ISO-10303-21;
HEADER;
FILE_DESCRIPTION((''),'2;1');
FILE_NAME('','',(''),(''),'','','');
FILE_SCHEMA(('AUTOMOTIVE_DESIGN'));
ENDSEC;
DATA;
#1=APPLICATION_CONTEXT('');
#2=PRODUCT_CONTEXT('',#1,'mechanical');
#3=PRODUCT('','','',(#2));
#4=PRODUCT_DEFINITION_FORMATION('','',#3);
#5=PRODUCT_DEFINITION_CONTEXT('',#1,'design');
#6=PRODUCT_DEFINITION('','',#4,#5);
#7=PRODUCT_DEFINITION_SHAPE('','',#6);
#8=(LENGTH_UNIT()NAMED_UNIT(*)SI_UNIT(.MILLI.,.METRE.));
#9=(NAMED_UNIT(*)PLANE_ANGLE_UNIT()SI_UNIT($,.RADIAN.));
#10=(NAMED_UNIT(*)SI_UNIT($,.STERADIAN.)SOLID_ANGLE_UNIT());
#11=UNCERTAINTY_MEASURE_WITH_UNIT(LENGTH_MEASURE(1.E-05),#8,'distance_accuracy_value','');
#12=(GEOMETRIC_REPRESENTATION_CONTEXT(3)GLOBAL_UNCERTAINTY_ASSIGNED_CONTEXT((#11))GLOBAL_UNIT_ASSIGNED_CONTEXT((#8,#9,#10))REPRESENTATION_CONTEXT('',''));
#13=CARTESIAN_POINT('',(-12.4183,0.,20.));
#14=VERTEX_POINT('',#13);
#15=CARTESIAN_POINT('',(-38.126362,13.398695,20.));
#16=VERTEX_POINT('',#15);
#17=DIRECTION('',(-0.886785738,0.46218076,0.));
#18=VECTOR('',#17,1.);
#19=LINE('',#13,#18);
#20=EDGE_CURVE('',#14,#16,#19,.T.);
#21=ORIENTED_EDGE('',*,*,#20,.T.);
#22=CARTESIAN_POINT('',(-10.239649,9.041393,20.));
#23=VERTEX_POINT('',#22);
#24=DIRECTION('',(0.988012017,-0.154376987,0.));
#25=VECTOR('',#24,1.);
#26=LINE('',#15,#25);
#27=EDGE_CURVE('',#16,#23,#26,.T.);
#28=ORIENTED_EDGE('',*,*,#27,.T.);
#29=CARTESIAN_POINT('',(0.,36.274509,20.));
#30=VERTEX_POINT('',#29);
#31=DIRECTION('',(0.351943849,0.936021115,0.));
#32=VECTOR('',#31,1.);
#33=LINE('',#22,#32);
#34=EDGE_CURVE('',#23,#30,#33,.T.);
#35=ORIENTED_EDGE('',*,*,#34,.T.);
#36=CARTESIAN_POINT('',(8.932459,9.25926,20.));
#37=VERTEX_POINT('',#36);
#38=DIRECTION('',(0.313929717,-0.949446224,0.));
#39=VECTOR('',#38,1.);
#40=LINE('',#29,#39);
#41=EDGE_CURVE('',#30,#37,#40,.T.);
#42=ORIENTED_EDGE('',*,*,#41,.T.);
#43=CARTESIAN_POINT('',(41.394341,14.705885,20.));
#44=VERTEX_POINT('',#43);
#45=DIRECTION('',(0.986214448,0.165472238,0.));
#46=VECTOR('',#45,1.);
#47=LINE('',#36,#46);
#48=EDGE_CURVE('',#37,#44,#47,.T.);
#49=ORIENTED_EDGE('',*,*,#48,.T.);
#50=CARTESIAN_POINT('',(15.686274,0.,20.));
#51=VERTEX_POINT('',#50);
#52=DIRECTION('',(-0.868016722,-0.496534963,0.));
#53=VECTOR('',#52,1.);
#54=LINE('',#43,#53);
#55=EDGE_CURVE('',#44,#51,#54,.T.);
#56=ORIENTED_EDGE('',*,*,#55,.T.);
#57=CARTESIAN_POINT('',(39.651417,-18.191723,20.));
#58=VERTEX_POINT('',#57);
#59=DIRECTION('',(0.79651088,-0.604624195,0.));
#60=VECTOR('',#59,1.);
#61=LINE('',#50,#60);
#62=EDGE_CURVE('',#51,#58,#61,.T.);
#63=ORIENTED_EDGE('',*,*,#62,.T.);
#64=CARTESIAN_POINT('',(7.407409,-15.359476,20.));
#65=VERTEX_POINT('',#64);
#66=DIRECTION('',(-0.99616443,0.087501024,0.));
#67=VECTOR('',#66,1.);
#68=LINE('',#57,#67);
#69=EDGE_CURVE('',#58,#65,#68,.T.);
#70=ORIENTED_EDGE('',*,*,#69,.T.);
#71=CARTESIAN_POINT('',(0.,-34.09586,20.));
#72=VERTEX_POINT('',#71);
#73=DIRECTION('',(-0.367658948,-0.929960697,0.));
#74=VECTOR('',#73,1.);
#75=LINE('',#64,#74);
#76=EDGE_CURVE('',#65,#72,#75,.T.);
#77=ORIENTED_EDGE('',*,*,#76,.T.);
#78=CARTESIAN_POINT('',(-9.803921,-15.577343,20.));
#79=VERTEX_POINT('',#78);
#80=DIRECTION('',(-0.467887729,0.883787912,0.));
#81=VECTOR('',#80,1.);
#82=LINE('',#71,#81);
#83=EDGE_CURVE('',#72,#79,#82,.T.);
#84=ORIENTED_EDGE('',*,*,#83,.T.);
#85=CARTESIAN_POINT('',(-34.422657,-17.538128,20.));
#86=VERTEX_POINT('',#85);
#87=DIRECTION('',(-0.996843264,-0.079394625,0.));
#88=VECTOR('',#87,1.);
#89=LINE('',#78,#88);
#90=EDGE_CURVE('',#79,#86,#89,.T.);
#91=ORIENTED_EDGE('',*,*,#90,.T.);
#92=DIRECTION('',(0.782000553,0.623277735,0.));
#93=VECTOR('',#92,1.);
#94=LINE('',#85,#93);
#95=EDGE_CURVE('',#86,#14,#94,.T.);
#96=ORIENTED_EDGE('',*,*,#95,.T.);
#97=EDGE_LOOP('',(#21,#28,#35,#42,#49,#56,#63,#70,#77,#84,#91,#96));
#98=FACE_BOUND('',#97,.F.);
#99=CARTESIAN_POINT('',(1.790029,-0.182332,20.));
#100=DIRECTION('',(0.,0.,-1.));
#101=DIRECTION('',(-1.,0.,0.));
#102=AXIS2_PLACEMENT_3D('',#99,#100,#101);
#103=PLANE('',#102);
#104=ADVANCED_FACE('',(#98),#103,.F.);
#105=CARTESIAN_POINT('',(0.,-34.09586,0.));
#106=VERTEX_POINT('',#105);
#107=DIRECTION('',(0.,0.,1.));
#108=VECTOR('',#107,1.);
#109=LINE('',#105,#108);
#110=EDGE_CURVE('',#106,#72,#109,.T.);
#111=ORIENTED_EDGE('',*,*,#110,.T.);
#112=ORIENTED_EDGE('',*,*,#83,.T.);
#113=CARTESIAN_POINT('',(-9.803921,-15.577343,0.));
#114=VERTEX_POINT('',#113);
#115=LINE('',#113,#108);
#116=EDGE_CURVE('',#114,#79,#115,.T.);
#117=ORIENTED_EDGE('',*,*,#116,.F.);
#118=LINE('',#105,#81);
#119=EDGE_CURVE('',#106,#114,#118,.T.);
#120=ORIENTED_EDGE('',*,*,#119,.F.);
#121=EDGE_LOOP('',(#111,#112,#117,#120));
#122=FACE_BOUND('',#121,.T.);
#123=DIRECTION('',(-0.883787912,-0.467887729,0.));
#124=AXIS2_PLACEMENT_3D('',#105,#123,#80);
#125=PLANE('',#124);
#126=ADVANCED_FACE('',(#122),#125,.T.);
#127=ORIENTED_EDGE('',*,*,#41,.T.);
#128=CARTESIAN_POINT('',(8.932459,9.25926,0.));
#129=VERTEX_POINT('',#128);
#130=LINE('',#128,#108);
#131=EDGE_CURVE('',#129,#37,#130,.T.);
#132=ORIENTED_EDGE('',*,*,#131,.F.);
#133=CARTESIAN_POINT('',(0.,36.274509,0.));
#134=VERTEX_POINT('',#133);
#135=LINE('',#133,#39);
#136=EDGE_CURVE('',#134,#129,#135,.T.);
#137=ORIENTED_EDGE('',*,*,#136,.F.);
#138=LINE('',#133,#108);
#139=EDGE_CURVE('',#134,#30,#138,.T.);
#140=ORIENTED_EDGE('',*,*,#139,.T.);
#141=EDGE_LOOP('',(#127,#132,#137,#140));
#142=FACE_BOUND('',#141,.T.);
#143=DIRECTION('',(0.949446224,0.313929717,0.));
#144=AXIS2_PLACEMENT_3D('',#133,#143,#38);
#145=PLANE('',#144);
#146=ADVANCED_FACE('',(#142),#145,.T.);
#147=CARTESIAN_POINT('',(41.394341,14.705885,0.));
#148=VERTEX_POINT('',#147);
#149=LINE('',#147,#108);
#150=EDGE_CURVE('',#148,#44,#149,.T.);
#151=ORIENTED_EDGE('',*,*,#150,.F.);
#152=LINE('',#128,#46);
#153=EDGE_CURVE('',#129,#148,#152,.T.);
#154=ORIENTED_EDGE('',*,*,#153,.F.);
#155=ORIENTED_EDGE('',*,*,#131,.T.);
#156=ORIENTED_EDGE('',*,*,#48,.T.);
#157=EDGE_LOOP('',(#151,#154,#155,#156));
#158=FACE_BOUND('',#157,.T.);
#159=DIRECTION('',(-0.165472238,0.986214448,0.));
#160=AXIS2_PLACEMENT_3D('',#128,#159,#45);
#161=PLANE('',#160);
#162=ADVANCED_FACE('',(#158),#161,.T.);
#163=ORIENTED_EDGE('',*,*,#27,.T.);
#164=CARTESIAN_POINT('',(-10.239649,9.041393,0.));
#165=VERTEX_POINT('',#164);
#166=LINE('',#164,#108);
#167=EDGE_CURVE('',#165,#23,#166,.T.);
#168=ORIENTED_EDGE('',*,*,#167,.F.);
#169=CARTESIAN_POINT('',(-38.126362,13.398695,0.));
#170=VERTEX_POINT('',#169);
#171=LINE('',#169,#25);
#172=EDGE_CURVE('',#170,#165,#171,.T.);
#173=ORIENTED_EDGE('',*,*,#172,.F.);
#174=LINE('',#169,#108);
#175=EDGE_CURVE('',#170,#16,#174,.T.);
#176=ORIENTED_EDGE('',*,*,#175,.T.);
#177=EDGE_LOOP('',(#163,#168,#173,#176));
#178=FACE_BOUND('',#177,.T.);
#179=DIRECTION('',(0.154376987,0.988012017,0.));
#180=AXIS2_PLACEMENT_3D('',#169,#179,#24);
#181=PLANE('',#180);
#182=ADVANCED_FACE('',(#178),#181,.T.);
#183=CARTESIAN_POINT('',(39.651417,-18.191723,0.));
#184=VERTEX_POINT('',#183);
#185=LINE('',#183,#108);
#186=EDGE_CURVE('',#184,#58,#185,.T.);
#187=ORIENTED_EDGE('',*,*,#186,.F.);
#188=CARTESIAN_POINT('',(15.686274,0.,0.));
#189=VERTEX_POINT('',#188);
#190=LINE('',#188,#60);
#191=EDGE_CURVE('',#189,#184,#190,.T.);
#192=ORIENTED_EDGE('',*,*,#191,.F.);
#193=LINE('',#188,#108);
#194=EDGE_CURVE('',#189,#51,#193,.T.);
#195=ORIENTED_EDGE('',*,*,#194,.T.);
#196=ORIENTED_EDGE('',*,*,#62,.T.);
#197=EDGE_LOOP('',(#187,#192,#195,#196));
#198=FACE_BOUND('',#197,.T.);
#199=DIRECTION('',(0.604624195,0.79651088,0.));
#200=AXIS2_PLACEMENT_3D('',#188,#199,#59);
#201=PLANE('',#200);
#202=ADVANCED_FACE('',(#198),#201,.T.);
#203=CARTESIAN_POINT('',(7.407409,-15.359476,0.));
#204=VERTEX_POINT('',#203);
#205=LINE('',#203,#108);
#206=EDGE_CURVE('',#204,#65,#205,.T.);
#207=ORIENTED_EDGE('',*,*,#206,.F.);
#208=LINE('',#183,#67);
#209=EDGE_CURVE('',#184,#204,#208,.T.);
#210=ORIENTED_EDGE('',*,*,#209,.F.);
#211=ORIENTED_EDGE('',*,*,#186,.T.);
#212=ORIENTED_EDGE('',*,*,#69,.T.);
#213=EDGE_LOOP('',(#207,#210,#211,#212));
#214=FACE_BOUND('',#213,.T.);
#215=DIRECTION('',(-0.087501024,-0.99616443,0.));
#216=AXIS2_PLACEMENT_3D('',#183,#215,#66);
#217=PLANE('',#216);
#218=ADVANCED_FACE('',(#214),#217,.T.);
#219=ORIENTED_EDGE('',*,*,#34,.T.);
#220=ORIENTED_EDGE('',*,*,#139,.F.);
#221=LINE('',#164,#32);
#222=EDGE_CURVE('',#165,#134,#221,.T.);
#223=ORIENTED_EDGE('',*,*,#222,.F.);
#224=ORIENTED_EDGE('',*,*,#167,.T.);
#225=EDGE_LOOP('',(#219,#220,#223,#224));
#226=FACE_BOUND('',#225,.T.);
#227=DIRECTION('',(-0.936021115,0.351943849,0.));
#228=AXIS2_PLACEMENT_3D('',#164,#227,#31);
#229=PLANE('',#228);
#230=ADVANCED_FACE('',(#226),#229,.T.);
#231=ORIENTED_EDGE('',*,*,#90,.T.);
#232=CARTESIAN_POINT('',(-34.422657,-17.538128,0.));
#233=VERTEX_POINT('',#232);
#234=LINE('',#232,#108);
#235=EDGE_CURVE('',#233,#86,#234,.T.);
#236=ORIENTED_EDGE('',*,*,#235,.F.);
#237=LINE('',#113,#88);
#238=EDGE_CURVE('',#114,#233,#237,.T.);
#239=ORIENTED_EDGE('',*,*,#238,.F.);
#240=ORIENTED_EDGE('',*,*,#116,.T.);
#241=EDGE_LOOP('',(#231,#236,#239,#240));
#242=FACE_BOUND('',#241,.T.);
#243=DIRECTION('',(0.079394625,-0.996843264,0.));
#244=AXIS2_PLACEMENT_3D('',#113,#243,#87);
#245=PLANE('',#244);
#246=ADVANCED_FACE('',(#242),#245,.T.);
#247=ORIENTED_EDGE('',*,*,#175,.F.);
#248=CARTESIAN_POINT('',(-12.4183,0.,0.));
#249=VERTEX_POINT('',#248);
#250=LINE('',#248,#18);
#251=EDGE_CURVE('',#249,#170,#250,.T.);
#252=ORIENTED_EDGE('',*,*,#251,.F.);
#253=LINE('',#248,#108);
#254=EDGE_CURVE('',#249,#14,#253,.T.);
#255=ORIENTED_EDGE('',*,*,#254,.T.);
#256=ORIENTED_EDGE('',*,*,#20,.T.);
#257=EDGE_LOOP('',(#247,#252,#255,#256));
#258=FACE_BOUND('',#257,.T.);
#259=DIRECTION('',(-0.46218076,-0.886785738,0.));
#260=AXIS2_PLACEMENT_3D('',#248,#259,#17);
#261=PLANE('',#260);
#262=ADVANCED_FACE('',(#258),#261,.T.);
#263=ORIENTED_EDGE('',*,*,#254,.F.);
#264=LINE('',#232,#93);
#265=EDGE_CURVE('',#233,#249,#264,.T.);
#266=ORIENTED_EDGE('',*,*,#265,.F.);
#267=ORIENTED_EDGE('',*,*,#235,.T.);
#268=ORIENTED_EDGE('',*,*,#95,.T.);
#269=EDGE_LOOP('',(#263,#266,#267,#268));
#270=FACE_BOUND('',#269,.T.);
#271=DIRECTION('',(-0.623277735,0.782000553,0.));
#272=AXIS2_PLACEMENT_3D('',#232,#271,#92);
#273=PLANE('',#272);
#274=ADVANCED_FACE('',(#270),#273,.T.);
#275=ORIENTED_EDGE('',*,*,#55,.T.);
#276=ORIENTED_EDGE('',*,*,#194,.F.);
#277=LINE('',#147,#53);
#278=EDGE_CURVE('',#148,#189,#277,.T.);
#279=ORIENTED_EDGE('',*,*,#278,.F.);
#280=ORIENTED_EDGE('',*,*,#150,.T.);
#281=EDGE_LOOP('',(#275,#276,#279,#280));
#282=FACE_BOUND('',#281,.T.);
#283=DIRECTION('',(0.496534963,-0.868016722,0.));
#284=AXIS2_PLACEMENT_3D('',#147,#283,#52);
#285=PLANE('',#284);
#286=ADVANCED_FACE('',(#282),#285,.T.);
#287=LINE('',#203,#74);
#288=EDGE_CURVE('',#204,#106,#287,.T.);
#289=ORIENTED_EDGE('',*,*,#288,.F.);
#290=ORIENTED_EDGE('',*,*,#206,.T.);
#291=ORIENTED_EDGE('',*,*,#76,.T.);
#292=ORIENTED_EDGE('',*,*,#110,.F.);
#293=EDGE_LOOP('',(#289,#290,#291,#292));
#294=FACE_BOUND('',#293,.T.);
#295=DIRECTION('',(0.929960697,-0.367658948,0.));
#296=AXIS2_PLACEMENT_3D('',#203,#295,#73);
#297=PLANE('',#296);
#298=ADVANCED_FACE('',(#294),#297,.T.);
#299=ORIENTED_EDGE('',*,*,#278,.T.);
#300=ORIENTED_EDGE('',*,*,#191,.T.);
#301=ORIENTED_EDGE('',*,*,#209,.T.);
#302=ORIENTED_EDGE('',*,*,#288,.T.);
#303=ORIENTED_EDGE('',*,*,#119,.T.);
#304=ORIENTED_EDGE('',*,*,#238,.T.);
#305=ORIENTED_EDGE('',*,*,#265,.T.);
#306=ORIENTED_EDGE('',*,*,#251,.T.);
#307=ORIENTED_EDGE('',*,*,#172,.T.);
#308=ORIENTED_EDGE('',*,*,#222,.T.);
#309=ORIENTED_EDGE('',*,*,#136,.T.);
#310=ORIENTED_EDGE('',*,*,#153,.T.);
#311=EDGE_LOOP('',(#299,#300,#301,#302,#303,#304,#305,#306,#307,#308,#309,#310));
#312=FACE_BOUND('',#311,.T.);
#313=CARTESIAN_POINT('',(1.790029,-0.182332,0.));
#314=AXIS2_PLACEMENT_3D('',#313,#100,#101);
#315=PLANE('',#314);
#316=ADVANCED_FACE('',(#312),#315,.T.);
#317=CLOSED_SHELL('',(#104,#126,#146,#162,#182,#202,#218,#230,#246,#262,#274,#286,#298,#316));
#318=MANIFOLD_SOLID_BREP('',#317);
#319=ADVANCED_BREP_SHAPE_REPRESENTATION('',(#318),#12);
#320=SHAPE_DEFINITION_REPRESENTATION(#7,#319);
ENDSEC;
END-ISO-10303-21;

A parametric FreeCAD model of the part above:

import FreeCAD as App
import Part
import Sketcher

V = App.Vector


def add_polygon(sketch, points):
    """Adds a closed chain of lines whose ends are joined by coincident constraints."""
    first, n = sketch.GeometryCount, len(points)
    for a, b in zip(points, points[1:] + points[:1]):
        sketch.addGeometry(Part.LineSegment(App.Vector(*a, 0), App.Vector(*b, 0)), False)
    for i in range(n):
        sketch.addConstraint(Sketcher.Constraint("Coincident", first + i, 2, first + (i + 1) % n, 1))

doc = App.newDocument("Part")
body = doc.addObject("PartDesign::Body", "Body")

# Sketch on XY plane
sketch1 = body.newObject("Sketcher::SketchObject", "Sketch")
sketch1.AttachmentSupport = (doc.getObject("XY_Plane"), [""])
sketch1.MapMode = "FlatFace"
add_polygon(sketch1, [(9, 9), (0, 36), (-10, 9), (-38, 13), (-12, 0), (-34, -18), (-10, -16), (0, -34), (7, -15), (40, -18), (16, 0), (41, 15)])  # lines 0-11
sketch1.addConstraint(Sketcher.Constraint("PointOnObject", 0, 2, -2))
sketch1.addConstraint(Sketcher.Constraint("PointOnObject", 3, 2, -1))
sketch1.addConstraint(Sketcher.Constraint("PointOnObject", 6, 2, -2))
sketch1.addConstraint(Sketcher.Constraint("PointOnObject", 9, 2, -1))
sketch1.addConstraint(Sketcher.Constraint("Distance", 7, 20.147501))
sketch1.addConstraint(Sketcher.Constraint("DistanceX", 3, 2, -1, 1, 12.4183))
sketch1.addConstraint(Sketcher.Constraint("Distance", 0, 28.45369))
sketch1.addConstraint(Sketcher.Constraint("Distance", 3, 28.990162))
sketch1.addConstraint(Sketcher.Constraint("Distance", 8, 32.368158))
sketch1.addConstraint(Sketcher.Constraint("Distance", 10, 29.617018))
sketch1.addConstraint(Sketcher.Constraint("DistanceY", -1, 1, 0, 2, 36.274509))
sketch1.addConstraint(Sketcher.Constraint("DistanceX", 1, 2, -1, 1, 10.239649))
sketch1.addConstraint(Sketcher.Constraint("DistanceY", 4, 2, -1, 1, 17.538128))
sketch1.addConstraint(Sketcher.Constraint("DistanceX", 5, 2, -1, 1, 9.803921))
sketch1.addConstraint(Sketcher.Constraint("DistanceY", 6, 2, -1, 1, 34.09586))
sketch1.addConstraint(Sketcher.Constraint("DistanceX", -1, 1, 7, 2, 7.407409))
sketch1.addConstraint(Sketcher.Constraint("DistanceX", -1, 1, 10, 2, 41.394341))
sketch1.addConstraint(Sketcher.Constraint("DistanceX", -1, 1, 11, 2, 8.932459))
sketch1.addConstraint(Sketcher.Constraint("DistanceX", 2, 2, 3, 2, 25.708062))
sketch1.addConstraint(Sketcher.Constraint("DistanceX", 4, 2, 1, 2, 24.183008))
sketch1.addConstraint(Sketcher.Constraint("DistanceY", 4, 2, 1, 2, 26.579521))
sketch1.addConstraint(Sketcher.Constraint("DistanceY", 5, 2, 2, 2, 28.976038))
sketch1.addConstraint(Sketcher.Constraint("DistanceX", 5, 2, 8, 2, 49.455338))
sketch1.addConstraint(Sketcher.Constraint("DistanceY", 7, 2, 10, 2, 30.065361))
pad1 = body.newObject("PartDesign::Pad", "Pad")
pad1.Profile = sketch1
pad1.Length = 20

doc.recompute()
